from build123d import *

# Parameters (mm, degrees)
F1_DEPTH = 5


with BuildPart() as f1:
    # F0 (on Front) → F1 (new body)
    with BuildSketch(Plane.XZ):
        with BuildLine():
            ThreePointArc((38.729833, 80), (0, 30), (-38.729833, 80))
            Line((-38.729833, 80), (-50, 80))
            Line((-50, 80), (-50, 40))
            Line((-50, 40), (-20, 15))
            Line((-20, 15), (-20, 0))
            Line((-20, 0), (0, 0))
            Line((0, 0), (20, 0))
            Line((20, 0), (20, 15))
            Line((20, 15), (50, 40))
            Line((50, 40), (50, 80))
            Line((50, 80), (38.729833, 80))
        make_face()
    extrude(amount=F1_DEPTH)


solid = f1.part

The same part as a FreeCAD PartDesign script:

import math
import FreeCAD as App
import Part
import Sketcher

V = App.Vector

doc = App.newDocument("Part")
params = doc.addObject("Spreadsheet::Sheet", "Params")
for row, (alias, value) in enumerate([
    ("sketch1_radius", "40 mm"),
    ("sketch1_width", "40 mm"),
    ("sketch1_height", "15 mm"),
    ("pad1_length", "5 mm"),
], start=1):
    params.set(f"A{row}", alias)
    params.set(f"B{row}", "=" + value)
    params.setAlias(f"B{row}", alias)

body = doc.addObject("PartDesign::Body", "Body")

sketch1 = doc.addObject("Sketcher::SketchObject", "Sketch")
body.addObject(sketch1)
sketch1.AttachmentSupport = (doc.XZ_Plane, [""])
sketch1.MapMode = "FlatFace"
sketch1.addGeometry([
    Part.ArcOfCircle(Part.Circle(V(0, 70, 0), V(0, 0, 1), 40), math.radians(166), math.radians(374)),
    Part.LineSegment(V(-39, 80, 0), V(-50, 80, 0)),
    Part.LineSegment(V(-50, 80, 0), V(-50, 40, 0)),
    Part.LineSegment(V(-50, 40, 0), V(-20, 15, 0)),
    Part.LineSegment(V(-20, 15, 0), V(-20, 0, 0)),
    Part.LineSegment(V(-20, 0, 0), V(20, 0, 0)),
    Part.LineSegment(V(20, 0, 0), V(20, 15, 0)),
    Part.LineSegment(V(20, 15, 0), V(50, 40, 0)),
    Part.LineSegment(V(50, 40, 0), V(50, 80, 0)),
    Part.LineSegment(V(50, 80, 0), V(39, 80, 0)),
], False)
sketch1.addConstraint([
    Sketcher.Constraint("Coincident", 0, 1, 1, 1),
    Sketcher.Constraint("Coincident", 1, 2, 2, 1),
    Sketcher.Constraint("Coincident", 2, 2, 3, 1),
    Sketcher.Constraint("Coincident", 3, 2, 4, 1),
    Sketcher.Constraint("Coincident", 4, 2, 5, 1),
    Sketcher.Constraint("Coincident", 5, 2, 6, 1),
    Sketcher.Constraint("Coincident", 6, 2, 7, 1),
    Sketcher.Constraint("Coincident", 7, 2, 8, 1),
    Sketcher.Constraint("Coincident", 8, 2, 9, 1),
    Sketcher.Constraint("Coincident", 9, 2, 0, 2),
    Sketcher.Constraint("Horizontal", 1),
    Sketcher.Constraint("Vertical", 2),
    Sketcher.Constraint("Vertical", 4),
    Sketcher.Constraint("Horizontal", 5),
    Sketcher.Constraint("Vertical", 6),
    Sketcher.Constraint("Vertical", 8),
    Sketcher.Constraint("Horizontal", 9),
    Sketcher.Constraint("Symmetric", 4, 2, 5, 2, -1, 1),
    Sketcher.Constraint("Symmetric", 2, 2, 7, 2, -2),
    Sketcher.Constraint("Symmetric", 0, 1, 9, 2, -2),
    Sketcher.Constraint("Horizontal", 3, 2, 6, 2),
    Sketcher.Constraint("Equal", 5, 2),
    Sketcher.Constraint("Radius", 0, 40.0),
    Sketcher.Constraint("DistanceX", 5, 1, 5, 2, 40.0),
    Sketcher.Constraint("DistanceY", 4, 2, 4, 1, 15.0),
    Sketcher.Constraint("DistanceY", -1, 1, 0, 3, 70.0),
    Sketcher.Constraint("DistanceY", -1, 1, 0, 1, 80.0),
    Sketcher.Constraint("DistanceX", 1, 2, -1, 1, 50.0),
])
sketch1.setExpression("Constraints[22]", "Params.sketch1_radius")
sketch1.setExpression("Constraints[23]", "Params.sketch1_width")
sketch1.setExpression("Constraints[24]", "Params.sketch1_height")
pad1 = doc.addObject("PartDesign::Pad", "Pad")
body.addObject(pad1)
pad1.Profile = sketch1
pad1.setExpression("Length", "Params.pad1_length")

doc.recompute()
